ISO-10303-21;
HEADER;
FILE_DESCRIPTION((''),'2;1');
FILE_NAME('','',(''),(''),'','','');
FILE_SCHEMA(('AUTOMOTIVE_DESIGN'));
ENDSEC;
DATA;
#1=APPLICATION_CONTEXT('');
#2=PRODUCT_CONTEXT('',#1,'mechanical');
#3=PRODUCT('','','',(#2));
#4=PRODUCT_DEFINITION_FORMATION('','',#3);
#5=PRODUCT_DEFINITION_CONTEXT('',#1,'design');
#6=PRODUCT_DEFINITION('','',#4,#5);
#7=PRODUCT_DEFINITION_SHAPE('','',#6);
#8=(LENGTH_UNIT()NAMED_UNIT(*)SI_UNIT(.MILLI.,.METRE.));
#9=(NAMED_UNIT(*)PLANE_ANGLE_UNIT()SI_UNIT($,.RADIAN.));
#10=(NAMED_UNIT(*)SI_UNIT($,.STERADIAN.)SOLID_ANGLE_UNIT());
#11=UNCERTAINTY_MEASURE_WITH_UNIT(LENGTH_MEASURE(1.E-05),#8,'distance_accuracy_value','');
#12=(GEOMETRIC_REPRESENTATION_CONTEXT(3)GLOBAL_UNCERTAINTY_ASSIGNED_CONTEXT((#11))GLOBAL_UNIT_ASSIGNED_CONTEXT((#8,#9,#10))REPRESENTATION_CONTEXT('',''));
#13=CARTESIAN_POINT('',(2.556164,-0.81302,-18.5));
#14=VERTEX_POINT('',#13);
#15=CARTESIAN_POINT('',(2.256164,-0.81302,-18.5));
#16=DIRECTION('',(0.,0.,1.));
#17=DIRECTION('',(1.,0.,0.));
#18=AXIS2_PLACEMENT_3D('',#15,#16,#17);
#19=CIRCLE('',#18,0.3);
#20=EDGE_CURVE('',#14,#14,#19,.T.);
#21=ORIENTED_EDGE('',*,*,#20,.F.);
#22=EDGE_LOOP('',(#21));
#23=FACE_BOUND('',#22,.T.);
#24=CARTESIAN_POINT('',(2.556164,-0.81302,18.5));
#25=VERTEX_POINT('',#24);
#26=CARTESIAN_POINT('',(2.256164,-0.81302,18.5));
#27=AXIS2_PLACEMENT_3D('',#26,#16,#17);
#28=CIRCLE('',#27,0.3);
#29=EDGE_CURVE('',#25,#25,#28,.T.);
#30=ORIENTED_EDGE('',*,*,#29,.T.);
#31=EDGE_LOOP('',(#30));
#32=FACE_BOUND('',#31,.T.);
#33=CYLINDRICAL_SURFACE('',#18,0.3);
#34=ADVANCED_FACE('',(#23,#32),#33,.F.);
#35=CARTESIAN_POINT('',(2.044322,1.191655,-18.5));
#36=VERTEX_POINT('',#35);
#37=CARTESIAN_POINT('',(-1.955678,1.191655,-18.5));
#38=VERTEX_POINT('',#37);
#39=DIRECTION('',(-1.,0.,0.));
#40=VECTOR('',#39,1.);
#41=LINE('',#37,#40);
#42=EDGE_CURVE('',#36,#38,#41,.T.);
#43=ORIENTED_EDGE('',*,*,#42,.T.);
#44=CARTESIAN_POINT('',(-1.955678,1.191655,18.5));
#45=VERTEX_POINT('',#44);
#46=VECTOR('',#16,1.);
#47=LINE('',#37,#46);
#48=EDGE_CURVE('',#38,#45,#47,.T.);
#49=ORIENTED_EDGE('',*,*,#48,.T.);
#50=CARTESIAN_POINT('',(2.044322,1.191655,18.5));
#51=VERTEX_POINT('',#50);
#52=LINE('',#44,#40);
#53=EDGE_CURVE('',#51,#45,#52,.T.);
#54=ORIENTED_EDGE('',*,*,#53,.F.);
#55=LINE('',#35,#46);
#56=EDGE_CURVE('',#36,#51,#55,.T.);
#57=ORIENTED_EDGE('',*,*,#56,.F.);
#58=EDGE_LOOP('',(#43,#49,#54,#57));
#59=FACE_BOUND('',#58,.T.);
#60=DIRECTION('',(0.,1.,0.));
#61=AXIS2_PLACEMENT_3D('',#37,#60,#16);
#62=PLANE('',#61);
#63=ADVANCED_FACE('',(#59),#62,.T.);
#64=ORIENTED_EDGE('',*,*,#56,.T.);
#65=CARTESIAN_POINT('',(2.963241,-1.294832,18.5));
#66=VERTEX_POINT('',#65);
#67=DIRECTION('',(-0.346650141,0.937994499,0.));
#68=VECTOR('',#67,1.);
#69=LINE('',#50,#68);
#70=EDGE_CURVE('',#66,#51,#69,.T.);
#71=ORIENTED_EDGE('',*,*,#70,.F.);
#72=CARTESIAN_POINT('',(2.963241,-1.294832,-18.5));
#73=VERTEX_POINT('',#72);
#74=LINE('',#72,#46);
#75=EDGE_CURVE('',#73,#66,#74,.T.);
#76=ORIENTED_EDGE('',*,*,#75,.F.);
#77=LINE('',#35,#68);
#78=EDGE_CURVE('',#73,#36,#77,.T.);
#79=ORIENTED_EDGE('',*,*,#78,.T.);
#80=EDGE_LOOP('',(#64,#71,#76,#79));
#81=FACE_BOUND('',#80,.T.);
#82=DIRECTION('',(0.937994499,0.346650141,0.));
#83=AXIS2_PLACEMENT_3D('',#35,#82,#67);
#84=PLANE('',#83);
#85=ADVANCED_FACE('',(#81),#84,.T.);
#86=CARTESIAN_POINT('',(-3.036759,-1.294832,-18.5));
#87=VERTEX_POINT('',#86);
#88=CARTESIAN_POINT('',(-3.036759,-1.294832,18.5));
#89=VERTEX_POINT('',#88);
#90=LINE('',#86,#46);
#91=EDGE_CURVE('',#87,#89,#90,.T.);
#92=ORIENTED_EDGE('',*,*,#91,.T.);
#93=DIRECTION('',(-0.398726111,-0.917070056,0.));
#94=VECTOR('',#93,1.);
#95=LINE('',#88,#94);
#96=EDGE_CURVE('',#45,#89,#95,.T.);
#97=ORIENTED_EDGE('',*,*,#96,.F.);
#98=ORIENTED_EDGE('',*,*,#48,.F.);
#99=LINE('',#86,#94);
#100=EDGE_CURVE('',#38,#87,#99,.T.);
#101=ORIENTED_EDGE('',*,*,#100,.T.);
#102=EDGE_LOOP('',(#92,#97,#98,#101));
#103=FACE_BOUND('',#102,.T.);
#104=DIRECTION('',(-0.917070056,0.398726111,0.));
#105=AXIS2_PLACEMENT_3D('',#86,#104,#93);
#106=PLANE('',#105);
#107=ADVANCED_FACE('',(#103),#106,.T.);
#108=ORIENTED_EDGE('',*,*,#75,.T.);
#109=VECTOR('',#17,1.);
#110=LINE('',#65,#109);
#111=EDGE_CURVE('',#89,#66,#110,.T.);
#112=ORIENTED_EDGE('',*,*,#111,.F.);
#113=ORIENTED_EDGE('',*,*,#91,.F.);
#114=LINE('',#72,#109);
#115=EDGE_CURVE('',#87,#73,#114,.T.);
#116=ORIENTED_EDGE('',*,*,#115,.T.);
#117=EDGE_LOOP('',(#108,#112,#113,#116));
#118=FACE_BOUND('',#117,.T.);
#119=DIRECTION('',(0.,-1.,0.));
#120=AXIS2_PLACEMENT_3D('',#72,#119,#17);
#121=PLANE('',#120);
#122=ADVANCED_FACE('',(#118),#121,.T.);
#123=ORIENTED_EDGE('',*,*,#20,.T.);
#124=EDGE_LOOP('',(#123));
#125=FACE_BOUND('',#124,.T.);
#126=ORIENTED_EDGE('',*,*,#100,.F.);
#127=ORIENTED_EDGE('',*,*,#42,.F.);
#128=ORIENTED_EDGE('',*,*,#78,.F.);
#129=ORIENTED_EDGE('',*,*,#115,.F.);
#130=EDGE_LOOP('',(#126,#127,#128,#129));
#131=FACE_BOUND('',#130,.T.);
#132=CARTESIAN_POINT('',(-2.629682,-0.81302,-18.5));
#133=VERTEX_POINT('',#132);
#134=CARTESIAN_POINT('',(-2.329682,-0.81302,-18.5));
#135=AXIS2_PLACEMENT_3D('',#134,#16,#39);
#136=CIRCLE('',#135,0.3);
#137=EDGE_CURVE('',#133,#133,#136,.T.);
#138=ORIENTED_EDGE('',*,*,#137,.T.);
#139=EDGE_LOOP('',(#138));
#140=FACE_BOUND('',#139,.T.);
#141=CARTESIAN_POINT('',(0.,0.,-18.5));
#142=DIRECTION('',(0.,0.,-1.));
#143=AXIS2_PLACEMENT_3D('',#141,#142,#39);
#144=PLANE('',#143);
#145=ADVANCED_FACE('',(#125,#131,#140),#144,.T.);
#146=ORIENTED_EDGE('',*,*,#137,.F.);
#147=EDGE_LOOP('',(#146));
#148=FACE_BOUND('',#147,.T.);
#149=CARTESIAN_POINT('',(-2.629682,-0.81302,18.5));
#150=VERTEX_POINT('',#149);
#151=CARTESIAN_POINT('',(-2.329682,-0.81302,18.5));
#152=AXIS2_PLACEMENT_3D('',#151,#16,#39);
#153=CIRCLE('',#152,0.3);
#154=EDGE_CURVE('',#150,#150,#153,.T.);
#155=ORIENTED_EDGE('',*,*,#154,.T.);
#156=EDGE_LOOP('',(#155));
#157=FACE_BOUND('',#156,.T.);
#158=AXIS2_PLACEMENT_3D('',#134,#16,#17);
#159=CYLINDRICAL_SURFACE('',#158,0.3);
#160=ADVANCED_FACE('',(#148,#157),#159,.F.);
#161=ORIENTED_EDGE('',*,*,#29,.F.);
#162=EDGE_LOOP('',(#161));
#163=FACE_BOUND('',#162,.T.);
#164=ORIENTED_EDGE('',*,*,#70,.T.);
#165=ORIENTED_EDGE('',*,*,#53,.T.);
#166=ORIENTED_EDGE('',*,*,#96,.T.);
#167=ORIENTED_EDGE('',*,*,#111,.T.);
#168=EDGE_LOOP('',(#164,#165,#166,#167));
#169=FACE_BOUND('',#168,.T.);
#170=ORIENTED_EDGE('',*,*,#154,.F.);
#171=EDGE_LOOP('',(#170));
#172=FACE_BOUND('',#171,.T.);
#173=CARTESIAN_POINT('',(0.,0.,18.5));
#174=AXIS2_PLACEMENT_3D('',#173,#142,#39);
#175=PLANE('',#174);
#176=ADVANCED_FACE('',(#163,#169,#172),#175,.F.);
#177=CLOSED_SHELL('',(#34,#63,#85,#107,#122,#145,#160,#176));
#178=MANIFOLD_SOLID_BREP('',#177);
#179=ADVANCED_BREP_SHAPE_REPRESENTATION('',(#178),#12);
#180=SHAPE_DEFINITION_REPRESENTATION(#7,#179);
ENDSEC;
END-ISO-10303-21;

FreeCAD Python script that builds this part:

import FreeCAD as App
import Part
import Sketcher

V = App.Vector
Q = App.Units.Quantity

doc = App.newDocument("Part")
body = doc.addObject("PartDesign::Body", "Body")

sketch1 = body.newObject("Sketcher::SketchObject", "Sketch")
sketch1.AttachmentSupport = (doc.getObject("XY_Plane"), [""])
sketch1.MapMode = "FlatFace"
sketch1.addGeometry([
    Part.LineSegment(V(2.04, 1.19, 0), V(-1.96, 1.19, 0)),
    Part.LineSegment(V(-1.96, 1.19, 0), V(-3.04, -1.29, 0)),
    Part.LineSegment(V(-3.04, -1.29, 0), V(2.96, -1.29, 0)),
    Part.LineSegment(V(2.96, -1.29, 0), V(2.04, 1.19, 0)),
    Part.Circle(V(2.26, -0.81, 0), V(0, 0, 1), 0.3),
    Part.Circle(V(-2.33, -0.81, 0), V(0, 0, 1), 0.3),
], False)
sketch1.addConstraint([
    Sketcher.Constraint("Coincident", 0, 2, 1, 1),
    Sketcher.Constraint("Coincident", 1, 2, 2, 1),
    Sketcher.Constraint("Coincident", 2, 2, 3, 1),
    Sketcher.Constraint("Coincident", 3, 2, 0, 1),
    Sketcher.Constraint("Horizontal", 0),
    Sketcher.Constraint("Horizontal", 2),
    Sketcher.Constraint("Equal", 4, 5),
    Sketcher.Constraint("Horizontal", 4, 3, 5, 3),
    Sketcher.Constraint("Diameter", 4, Q("0.6 mm")),
    Sketcher.Constraint("DistanceX", 0, 2, 0, 1, Q("4 mm")),
    Sketcher.Constraint("DistanceX", 2, 1, 2, 2, Q("6 mm")),
    Sketcher.Constraint("DistanceY", 4, 3, -1, 1, Q("0.81302 mm")),
    Sketcher.Constraint("DistanceX", 1, 2, -1, 1, Q("3.036759 mm")),
    Sketcher.Constraint("DistanceY", 1, 2, -1, 1, Q("1.294832 mm")),
    Sketcher.Constraint("DistanceX", 1, 2, 0, 2, Q("1.081081 mm")),
    Sketcher.Constraint("Distance", 1, Q("2.711338 mm")),
    Sketcher.Constraint("DistanceX", -1, 1, 4, 3, Q("2.256164 mm")),
    Sketcher.Constraint("DistanceX", 5, 3, -1, 1, Q("2.329682 mm")),
])
pad1 = body.newObject("PartDesign::Pad", "Pad")
pad1.Profile = sketch1
pad1.Type = "TwoLengths"
pad1.Length = 18.5
pad1.Length2 = 18.5

doc.recompute()
